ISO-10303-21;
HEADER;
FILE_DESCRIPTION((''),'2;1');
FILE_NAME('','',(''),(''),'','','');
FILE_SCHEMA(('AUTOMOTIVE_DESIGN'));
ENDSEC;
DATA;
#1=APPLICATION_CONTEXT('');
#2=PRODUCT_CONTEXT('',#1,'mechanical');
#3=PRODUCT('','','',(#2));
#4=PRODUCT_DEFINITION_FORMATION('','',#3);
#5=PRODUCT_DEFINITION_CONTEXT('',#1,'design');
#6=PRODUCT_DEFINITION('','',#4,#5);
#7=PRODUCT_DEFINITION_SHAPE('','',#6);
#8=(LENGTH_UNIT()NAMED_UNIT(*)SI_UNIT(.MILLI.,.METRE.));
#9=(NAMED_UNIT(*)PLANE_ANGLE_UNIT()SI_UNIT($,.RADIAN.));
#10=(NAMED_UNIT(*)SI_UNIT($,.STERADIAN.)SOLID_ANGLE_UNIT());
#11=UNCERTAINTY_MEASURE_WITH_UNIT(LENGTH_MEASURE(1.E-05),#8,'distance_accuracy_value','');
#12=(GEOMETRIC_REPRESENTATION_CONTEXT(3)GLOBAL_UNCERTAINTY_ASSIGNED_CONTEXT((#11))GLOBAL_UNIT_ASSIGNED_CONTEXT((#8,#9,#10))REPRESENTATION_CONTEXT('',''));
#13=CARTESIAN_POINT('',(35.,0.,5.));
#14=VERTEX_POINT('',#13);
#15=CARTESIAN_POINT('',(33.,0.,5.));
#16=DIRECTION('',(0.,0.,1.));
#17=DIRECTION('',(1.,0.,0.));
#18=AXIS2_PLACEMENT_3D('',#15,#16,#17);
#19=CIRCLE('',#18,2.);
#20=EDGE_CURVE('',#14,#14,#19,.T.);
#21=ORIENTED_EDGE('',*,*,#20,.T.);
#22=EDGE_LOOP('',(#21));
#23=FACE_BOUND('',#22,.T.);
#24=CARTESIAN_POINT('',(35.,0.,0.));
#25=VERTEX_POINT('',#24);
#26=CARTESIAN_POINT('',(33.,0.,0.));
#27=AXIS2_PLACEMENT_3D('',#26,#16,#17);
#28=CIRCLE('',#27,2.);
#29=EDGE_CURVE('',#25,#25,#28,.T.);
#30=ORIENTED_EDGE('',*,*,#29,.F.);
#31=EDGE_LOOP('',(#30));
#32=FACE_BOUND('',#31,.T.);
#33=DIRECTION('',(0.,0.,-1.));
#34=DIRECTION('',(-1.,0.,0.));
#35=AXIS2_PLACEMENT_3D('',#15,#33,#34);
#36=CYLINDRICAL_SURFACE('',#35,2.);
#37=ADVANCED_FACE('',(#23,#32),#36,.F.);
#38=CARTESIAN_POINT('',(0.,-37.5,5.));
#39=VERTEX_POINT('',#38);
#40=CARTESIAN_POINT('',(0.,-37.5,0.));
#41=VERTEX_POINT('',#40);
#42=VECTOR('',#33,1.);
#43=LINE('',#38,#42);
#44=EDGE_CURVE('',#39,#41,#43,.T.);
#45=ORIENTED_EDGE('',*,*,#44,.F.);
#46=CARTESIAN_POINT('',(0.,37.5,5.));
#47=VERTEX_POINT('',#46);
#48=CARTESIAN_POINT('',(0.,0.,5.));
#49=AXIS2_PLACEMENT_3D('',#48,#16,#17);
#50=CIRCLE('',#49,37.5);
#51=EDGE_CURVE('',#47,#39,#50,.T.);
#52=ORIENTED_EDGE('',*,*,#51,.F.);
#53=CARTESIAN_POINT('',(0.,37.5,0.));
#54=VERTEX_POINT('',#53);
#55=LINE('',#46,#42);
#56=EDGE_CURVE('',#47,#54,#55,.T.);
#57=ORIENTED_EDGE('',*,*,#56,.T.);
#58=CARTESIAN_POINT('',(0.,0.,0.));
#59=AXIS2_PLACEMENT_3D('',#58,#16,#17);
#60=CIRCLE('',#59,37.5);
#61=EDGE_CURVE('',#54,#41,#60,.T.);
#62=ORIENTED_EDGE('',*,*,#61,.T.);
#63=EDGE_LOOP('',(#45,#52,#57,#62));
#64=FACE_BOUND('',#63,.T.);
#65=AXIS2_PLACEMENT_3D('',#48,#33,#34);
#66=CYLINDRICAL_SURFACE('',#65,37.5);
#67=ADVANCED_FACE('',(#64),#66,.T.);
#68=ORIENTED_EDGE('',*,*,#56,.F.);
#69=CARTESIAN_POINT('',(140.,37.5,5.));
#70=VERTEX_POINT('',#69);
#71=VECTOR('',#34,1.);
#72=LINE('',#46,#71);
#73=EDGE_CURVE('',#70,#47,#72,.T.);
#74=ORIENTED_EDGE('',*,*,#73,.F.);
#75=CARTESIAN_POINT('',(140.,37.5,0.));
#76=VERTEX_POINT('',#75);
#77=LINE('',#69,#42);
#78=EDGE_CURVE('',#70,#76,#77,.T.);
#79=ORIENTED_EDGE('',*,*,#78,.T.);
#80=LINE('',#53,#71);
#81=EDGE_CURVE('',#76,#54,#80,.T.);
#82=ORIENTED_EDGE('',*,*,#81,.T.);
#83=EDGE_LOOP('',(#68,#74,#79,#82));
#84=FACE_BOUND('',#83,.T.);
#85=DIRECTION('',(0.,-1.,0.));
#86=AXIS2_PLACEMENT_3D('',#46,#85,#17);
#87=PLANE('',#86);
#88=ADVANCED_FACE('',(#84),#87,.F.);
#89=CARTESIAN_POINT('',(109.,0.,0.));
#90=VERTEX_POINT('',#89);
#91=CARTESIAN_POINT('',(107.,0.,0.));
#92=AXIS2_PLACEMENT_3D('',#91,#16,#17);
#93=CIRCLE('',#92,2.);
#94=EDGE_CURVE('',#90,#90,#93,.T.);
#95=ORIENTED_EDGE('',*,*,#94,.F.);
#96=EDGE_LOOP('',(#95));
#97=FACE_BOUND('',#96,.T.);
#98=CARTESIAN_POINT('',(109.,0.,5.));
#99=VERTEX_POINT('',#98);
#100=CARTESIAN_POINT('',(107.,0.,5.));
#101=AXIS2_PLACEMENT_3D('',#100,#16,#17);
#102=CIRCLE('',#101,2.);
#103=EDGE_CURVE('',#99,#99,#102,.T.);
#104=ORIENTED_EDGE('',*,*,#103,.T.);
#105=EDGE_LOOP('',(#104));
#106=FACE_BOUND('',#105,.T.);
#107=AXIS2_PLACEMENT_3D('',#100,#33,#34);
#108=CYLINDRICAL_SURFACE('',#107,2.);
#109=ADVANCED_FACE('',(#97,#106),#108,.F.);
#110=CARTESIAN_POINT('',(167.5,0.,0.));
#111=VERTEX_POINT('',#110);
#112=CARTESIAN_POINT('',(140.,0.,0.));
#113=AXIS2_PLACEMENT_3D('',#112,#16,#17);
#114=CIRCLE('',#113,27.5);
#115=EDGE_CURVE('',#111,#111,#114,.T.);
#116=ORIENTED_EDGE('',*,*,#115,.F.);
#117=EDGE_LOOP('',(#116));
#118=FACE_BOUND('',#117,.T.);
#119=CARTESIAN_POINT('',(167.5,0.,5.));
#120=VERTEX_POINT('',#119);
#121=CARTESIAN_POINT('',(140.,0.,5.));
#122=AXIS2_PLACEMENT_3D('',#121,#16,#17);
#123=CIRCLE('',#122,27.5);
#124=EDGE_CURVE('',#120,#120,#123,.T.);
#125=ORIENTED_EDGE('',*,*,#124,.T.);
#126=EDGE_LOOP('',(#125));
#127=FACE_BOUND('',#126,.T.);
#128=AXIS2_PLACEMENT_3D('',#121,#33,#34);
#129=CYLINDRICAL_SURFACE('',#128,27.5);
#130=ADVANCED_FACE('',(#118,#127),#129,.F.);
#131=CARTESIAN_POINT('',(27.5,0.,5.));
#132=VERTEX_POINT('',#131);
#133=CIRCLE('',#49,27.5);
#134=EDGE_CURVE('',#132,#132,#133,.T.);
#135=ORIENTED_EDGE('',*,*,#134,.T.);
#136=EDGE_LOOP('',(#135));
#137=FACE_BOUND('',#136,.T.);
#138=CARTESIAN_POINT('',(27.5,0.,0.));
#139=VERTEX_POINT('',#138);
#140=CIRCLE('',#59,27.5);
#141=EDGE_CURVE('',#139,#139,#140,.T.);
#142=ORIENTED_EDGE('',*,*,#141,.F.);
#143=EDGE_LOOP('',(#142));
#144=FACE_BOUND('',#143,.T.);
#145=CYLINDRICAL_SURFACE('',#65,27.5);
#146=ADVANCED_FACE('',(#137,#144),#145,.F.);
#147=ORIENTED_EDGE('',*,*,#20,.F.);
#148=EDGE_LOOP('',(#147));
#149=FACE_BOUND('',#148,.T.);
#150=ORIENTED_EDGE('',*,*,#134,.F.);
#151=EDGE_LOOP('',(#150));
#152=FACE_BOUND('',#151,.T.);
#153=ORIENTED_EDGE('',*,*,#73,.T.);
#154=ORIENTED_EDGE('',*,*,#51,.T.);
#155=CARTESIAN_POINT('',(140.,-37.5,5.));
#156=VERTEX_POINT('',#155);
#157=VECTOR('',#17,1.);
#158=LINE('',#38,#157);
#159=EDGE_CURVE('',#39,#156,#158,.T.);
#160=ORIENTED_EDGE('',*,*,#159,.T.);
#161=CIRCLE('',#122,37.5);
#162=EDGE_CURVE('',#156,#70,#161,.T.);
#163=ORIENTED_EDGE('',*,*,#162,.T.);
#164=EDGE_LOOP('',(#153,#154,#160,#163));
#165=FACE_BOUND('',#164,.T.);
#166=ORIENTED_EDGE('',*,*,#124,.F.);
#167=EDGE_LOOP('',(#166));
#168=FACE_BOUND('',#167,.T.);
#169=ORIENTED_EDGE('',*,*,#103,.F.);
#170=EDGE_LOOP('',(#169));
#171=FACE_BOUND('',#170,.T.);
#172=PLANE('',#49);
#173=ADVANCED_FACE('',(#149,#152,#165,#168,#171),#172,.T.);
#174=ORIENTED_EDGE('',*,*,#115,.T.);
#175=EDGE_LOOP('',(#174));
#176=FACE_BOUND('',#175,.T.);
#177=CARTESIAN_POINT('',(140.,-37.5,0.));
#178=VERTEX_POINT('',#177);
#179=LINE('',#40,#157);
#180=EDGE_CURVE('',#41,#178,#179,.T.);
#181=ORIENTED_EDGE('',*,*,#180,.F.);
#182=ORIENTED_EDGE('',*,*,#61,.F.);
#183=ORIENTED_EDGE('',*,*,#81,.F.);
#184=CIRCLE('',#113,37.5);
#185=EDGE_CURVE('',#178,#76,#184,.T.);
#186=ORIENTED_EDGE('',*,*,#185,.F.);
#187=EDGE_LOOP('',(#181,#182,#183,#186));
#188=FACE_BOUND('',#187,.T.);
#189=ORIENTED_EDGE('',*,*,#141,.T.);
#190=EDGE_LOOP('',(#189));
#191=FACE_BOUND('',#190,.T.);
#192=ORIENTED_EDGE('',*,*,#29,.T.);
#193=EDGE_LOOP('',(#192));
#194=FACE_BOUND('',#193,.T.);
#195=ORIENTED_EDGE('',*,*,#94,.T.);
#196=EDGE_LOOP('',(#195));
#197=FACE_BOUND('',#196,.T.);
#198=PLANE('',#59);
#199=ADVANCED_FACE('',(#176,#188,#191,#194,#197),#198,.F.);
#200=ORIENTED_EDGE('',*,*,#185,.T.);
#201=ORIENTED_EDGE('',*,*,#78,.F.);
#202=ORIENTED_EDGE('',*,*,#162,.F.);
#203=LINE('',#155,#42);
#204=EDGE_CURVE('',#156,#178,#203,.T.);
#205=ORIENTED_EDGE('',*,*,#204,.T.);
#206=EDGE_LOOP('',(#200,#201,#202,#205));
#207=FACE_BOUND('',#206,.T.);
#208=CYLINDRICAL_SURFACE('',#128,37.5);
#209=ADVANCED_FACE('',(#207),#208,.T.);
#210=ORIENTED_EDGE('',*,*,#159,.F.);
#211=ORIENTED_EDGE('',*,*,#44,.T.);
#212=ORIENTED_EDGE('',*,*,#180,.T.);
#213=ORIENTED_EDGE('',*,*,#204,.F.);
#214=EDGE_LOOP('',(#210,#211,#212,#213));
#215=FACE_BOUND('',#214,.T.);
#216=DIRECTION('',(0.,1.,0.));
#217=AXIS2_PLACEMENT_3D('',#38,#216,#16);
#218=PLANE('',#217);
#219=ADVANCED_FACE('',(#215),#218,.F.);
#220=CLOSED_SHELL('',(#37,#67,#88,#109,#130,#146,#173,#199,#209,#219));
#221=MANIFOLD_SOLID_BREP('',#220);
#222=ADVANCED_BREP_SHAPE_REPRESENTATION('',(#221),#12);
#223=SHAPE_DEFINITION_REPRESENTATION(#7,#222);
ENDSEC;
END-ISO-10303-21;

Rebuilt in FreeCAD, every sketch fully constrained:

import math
import FreeCAD as App
import Part
import Sketcher

V = App.Vector
Q = App.Units.Quantity

doc = App.newDocument("Part")
body = doc.addObject("PartDesign::Body", "Body")

# Sketch on XY plane
sketch1 = body.newObject("Sketcher::SketchObject", "Sketch")
sketch1.AttachmentSupport = (doc.getObject("XY_Plane"), [""])
sketch1.MapMode = "FlatFace"
sketch1.addGeometry([
    Part.LineSegment(V(140, 37.5, 0), V(0, 37.5, 0)),  # 0
    Part.ArcOfCircle(Part.Circle(V(0, 0, 0), V(0, 0, 1), 37.5), math.radians(90), math.radians(270)),  # 1
    Part.LineSegment(V(0, -37.5, 0), V(140, -37.5, 0)),  # 2
    Part.ArcOfCircle(Part.Circle(V(140, 0, 0), V(0, 0, 1), 37.5), math.radians(-90), math.radians(90)),  # 3
    Part.Circle(V(140, 0, 0), V(0, 0, 1), 27.5),  # 4
    Part.Circle(V(107, 0, 0), V(0, 0, 1), 2),  # 5
    Part.Circle(V(33, 0, 0), V(0, 0, 1), 2),  # 6
    Part.Circle(V(0, 0, 0), V(0, 0, 1), 27.5),  # 7
], False)
sketch1.addConstraint([
    Sketcher.Constraint("Tangent", 0, 2, 1, 1),
    Sketcher.Constraint("Tangent", 1, 2, 2, 1),
    Sketcher.Constraint("Tangent", 2, 2, 3, 1),
    Sketcher.Constraint("Tangent", 3, 2, 0, 1),
    Sketcher.Constraint("Horizontal", 0),
    Sketcher.Constraint("Horizontal", 2),
    Sketcher.Constraint("Coincident", 1, 3, -1, 1),
    Sketcher.Constraint("Coincident", 7, 3, -1, 1),
    Sketcher.Constraint("Coincident", 4, 3, 3, 3),
    Sketcher.Constraint("Equal", 5, 6),
    Sketcher.Constraint("Equal", 4, 7),
    Sketcher.Constraint("PointOnObject", 5, 3, -1),
    Sketcher.Constraint("PointOnObject", 6, 3, -1),
    Sketcher.Constraint("Diameter", 4, Q("55 mm")),
    Sketcher.Constraint("Diameter", 5, Q("4 mm")),
    Sketcher.Constraint("Radius", 1, Q("37.5 mm")),
    Sketcher.Constraint("DistanceX", 0, 2, 0, 1, Q("140 mm")),
    Sketcher.Constraint("DistanceX", -1, 1, 5, 3, Q("107 mm")),
    Sketcher.Constraint("DistanceX", -1, 1, 6, 3, Q("33 mm")),
])
pad1 = body.newObject("PartDesign::Pad", "Pad")
pad1.Profile = sketch1
pad1.Length = 5

doc.recompute()
